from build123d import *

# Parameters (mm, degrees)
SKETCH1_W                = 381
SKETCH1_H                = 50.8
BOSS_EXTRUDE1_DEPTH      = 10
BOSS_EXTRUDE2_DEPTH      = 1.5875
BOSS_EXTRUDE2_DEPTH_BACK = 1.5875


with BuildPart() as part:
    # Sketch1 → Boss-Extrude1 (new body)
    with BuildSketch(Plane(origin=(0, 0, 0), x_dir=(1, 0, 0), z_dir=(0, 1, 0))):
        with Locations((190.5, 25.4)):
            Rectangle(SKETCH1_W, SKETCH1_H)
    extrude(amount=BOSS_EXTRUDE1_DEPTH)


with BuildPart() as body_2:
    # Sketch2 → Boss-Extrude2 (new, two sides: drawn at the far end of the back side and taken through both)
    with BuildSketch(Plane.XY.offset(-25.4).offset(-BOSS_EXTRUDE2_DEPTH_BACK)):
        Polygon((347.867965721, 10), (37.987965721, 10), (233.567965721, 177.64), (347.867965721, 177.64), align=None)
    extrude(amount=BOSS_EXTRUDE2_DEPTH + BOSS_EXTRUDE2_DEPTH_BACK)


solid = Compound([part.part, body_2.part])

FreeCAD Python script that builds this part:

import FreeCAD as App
import Part
import Sketcher
from FreeCAD import Vector
Q = App.Units.Quantity

doc = App.newDocument("Part")
body = doc.addObject("PartDesign::Body", "Body")

sketch1 = doc.addObject("Sketcher::SketchObject", "Sketch")
body.addObject(sketch1)
sketch1.AttachmentSupport = (doc.XZ_Plane, [""])
sketch1.MapMode = "FlatFace"
sketch1.addGeometry([
    Part.LineSegment(Vector(0, -51, 0), Vector(0, 0, 0)),
    Part.LineSegment(Vector(0, 0, 0), Vector(381, 0, 0)),
    Part.LineSegment(Vector(381, 0, 0), Vector(381, -51, 0)),
    Part.LineSegment(Vector(381, -51, 0), Vector(0, -51, 0)),
], False)
sketch1.addConstraint([
    Sketcher.Constraint("Coincident", 0, 2, 1, 1),
    Sketcher.Constraint("Coincident", 1, 2, 2, 1),
    Sketcher.Constraint("Coincident", 2, 2, 3, 1),
    Sketcher.Constraint("Coincident", 3, 2, 0, 1),
    Sketcher.Constraint("Vertical", 0),
    Sketcher.Constraint("Horizontal", 1),
    Sketcher.Constraint("Vertical", 2),
    Sketcher.Constraint("Horizontal", 3),
    Sketcher.Constraint("Coincident", 0, 2, -1, 1),
    Sketcher.Constraint("DistanceX", 1, 1, 1, 2, Q("15 in")),
    Sketcher.Constraint("DistanceY", 0, 1, 0, 2, Q("2 in")),
])
pad1 = doc.addObject("PartDesign::Pad", "Pad")
body.addObject(pad1)
pad1.Profile = sketch1
pad1.Length = 10
pad1.Reversed = True
body2 = doc.addObject("PartDesign::Body", "Body001")

sketch2 = doc.addObject("Sketcher::SketchObject", "Sketch001")
body2.addObject(sketch2)
sketch2.AttachmentSupport = (doc.getObject("XY_Plane001"), [""])
sketch2.MapMode = "FlatFace"
sketch2.AttachmentOffset = App.Placement(Vector(0, 0, -1 * 25.4), App.Rotation())
sketch2.addGeometry([
    Part.LineSegment(Vector(38, 10, 0), Vector(348, 10, 0)),
    Part.LineSegment(Vector(348, 10, 0), Vector(348, 178, 0)),
    Part.LineSegment(Vector(348, 178, 0), Vector(234, 178, 0)),
    Part.LineSegment(Vector(234, 178, 0), Vector(38, 10, 0)),
], False)
sketch2.addConstraint([
    Sketcher.Constraint("Coincident", 0, 2, 1, 1),
    Sketcher.Constraint("Coincident", 1, 2, 2, 1),
    Sketcher.Constraint("Coincident", 2, 2, 3, 1),
    Sketcher.Constraint("Coincident", 3, 2, 0, 1),
    Sketcher.Constraint("Horizontal", 0),
    Sketcher.Constraint("Vertical", 1),
    Sketcher.Constraint("Horizontal", 2),
    Sketcher.Constraint("DistanceX", 0, 1, 0, 2, Q("12.2 in")),
    Sketcher.Constraint("DistanceX", 2, 2, 2, 1, Q("4.5 in")),
    Sketcher.Constraint("DistanceY", 1, 1, 1, 2, Q("6.6 in")),
    Sketcher.Constraint("DistanceY", -1, 1, 0, 2, Q("10 mm")),
    Sketcher.Constraint("DistanceX", -1, 1, 0, 2, Q("347.867966 mm")),
])
pad2 = doc.addObject("PartDesign::Pad", "Pad001")
body2.addObject(pad2)
pad2.Profile = sketch2
pad2.Type = "TwoLengths"
pad2.Length = Q("0.0625 in")
pad2.Length2 = Q("0.0625 in")

doc.recompute()
